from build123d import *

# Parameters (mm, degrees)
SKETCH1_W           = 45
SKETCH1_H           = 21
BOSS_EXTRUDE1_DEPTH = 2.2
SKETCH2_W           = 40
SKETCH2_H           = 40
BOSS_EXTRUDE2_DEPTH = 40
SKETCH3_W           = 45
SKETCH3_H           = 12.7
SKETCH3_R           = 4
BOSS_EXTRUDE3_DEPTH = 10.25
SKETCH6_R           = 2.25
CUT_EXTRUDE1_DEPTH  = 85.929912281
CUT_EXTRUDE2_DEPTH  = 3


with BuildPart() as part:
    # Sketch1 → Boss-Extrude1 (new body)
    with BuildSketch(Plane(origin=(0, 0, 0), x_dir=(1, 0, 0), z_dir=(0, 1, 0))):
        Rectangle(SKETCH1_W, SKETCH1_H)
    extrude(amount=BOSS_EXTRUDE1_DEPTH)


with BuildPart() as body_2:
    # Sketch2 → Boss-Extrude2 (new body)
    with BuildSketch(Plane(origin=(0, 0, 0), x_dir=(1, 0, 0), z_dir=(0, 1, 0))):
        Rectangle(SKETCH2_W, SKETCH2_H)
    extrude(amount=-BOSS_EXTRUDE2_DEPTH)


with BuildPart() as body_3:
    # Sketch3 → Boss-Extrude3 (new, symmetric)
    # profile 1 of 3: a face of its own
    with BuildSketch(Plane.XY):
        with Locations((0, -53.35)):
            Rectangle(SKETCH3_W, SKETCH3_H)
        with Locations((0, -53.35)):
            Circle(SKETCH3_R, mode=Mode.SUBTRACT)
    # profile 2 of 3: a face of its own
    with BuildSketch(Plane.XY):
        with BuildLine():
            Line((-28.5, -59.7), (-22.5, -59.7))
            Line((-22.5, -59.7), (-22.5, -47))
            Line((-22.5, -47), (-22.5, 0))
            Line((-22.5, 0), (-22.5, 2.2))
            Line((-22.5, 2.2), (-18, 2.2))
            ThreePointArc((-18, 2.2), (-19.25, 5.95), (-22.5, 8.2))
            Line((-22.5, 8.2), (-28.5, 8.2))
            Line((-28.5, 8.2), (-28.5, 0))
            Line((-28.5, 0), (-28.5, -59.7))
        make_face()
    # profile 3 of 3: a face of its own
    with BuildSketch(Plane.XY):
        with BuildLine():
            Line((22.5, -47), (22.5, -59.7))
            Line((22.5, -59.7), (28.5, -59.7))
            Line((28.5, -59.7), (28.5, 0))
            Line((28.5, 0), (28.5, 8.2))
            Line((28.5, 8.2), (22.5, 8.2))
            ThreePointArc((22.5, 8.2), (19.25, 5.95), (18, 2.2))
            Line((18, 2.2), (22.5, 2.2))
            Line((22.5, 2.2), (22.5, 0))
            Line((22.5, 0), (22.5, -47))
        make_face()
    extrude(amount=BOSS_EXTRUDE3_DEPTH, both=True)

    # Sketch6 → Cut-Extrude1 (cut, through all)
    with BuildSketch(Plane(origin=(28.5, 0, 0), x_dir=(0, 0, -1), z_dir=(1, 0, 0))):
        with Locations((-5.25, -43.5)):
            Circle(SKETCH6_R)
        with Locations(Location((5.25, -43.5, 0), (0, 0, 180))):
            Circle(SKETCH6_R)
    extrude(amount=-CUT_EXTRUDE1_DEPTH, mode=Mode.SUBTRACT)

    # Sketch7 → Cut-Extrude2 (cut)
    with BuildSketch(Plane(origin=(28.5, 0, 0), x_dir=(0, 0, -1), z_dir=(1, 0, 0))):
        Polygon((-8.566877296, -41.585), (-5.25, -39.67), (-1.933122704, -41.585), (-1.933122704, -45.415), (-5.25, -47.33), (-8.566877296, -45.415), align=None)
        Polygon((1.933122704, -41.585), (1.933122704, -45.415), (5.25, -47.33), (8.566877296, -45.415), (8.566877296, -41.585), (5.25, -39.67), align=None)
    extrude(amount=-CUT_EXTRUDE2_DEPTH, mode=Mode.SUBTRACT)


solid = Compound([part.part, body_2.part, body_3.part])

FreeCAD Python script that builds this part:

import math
import FreeCAD as App
import Part
import Sketcher

V = App.Vector
Q = App.Units.Quantity

doc = App.newDocument("Part")
body = doc.addObject("PartDesign::Body", "Body")

# Sketch on XZ plane
sketch1 = doc.addObject("Sketcher::SketchObject", "Sketch")
body.addObject(sketch1)
sketch1.AttachmentSupport = (doc.XZ_Plane, [""])
sketch1.MapMode = "FlatFace"
sketch1.addGeometry([
    Part.LineSegment(V(-22.5, -10.5, 0), V(-22.5, 10.5, 0)),
    Part.LineSegment(V(-22.5, 10.5, 0), V(22.5, 10.5, 0)),
    Part.LineSegment(V(22.5, 10.5, 0), V(22.5, -10.5, 0)),
    Part.LineSegment(V(22.5, -10.5, 0), V(-22.5, -10.5, 0)),
], False)
sketch1.addConstraint([
    Sketcher.Constraint("Coincident", 0, 2, 1, 1),
    Sketcher.Constraint("Coincident", 1, 2, 2, 1),
    Sketcher.Constraint("Coincident", 2, 2, 3, 1),
    Sketcher.Constraint("Coincident", 3, 2, 0, 1),
    Sketcher.Constraint("Vertical", 0),
    Sketcher.Constraint("Horizontal", 1),
    Sketcher.Constraint("Vertical", 2),
    Sketcher.Constraint("Horizontal", 3),
    Sketcher.Constraint("Symmetric", 0, 2, 2, 2, -1, 1),
    Sketcher.Constraint("DistanceX", 1, 1, 1, 2, Q("45 mm")),
    Sketcher.Constraint("DistanceY", 0, 1, 0, 2, Q("21 mm")),
])
pad1 = doc.addObject("PartDesign::Pad", "Pad")
body.addObject(pad1)
pad1.Profile = sketch1
pad1.Length = 2.2
pad1.Reversed = True
body2 = doc.addObject("PartDesign::Body", "Body001")

# Sketch on XZ plane
sketch2 = doc.addObject("Sketcher::SketchObject", "Sketch001")
body2.addObject(sketch2)
sketch2.AttachmentSupport = (doc.getObject("XZ_Plane001"), [""])
sketch2.MapMode = "FlatFace"
sketch2.addGeometry([
    Part.LineSegment(V(-20, -20, 0), V(-20, 20, 0)),
    Part.LineSegment(V(-20, 20, 0), V(20, 20, 0)),
    Part.LineSegment(V(20, 20, 0), V(20, -20, 0)),
    Part.LineSegment(V(20, -20, 0), V(-20, -20, 0)),
], False)
sketch2.addConstraint([
    Sketcher.Constraint("Coincident", 0, 2, 1, 1),
    Sketcher.Constraint("Coincident", 1, 2, 2, 1),
    Sketcher.Constraint("Coincident", 2, 2, 3, 1),
    Sketcher.Constraint("Coincident", 3, 2, 0, 1),
    Sketcher.Constraint("Vertical", 0),
    Sketcher.Constraint("Horizontal", 1),
    Sketcher.Constraint("Vertical", 2),
    Sketcher.Constraint("Horizontal", 3),
    Sketcher.Constraint("Symmetric", 0, 2, 2, 2, -1, 1),
    Sketcher.Constraint("Equal", 3, 0),
    Sketcher.Constraint("DistanceX", 1, 1, 1, 2, Q("40 mm")),
])
pad2 = doc.addObject("PartDesign::Pad", "Pad001")
body2.addObject(pad2)
pad2.Profile = sketch2
pad2.Length = 40
body3 = doc.addObject("PartDesign::Body", "Body002")

# Sketch on XY plane
sketch3 = doc.addObject("Sketcher::SketchObject", "Sketch002")
body3.addObject(sketch3)
sketch3.AttachmentSupport = (doc.getObject("XY_Plane002"), [""])
sketch3.MapMode = "FlatFace"
sketch3.addGeometry([
    Part.LineSegment(V(28.5, -59.7, 0), V(28.5, 8.2, 0)),  # 0
    Part.LineSegment(V(28.5, 8.2, 0), V(22.5, 8.2, 0)),  # 1
    Part.ArcOfCircle(Part.Circle(V(24.25, 2.2, 0), V(0, 0, 1), 6.25), math.radians(106.260205), math.radians(180)),  # 2
    Part.LineSegment(V(18, 2.2, 0), V(22.5, 2.2, 0)),  # 3
    Part.LineSegment(V(22.5, 2.2, 0), V(22.5, -47, 0)),  # 4
    Part.LineSegment(V(22.5, -47, 0), V(-22.5, -47, 0)),  # 5
    Part.LineSegment(V(-22.5, -47, 0), V(-22.5, 2.2, 0)),  # 6
    Part.LineSegment(V(-22.5, 2.2, 0), V(-18, 2.2, 0)),  # 7
    Part.ArcOfCircle(Part.Circle(V(-24.25, 2.2, 0), V(0, 0, 1), 6.25), math.radians(0), math.radians(73.739795)),  # 8
    Part.LineSegment(V(-22.5, 8.2, 0), V(-28.5, 8.2, 0)),  # 9
    Part.LineSegment(V(-28.5, 8.2, 0), V(-28.5, -59.7, 0)),  # 10
    Part.LineSegment(V(-28.5, -59.7, 0), V(28.5, -59.7, 0)),  # 11
    Part.Circle(V(0, -53.35, 0), V(0, 0, 1), 4),  # 12
], False)
sketch3.addConstraint([
    Sketcher.Constraint("Coincident", 0, 2, 1, 1),
    Sketcher.Constraint("Coincident", 1, 2, 2, 1),
    Sketcher.Constraint("Coincident", 2, 2, 3, 1),
    Sketcher.Constraint("Coincident", 3, 2, 4, 1),
    Sketcher.Constraint("Coincident", 4, 2, 5, 1),
    Sketcher.Constraint("Coincident", 5, 2, 6, 1),
    Sketcher.Constraint("Coincident", 6, 2, 7, 1),
    Sketcher.Constraint("Coincident", 7, 2, 8, 1),
    Sketcher.Constraint("Coincident", 8, 2, 9, 1),
    Sketcher.Constraint("Coincident", 9, 2, 10, 1),
    Sketcher.Constraint("Coincident", 10, 2, 11, 1),
    Sketcher.Constraint("Coincident", 11, 2, 0, 1),
    Sketcher.Constraint("Vertical", 0),
    Sketcher.Constraint("Horizontal", 1),
    Sketcher.Constraint("Horizontal", 3),
    Sketcher.Constraint("Vertical", 4),
    Sketcher.Constraint("Horizontal", 5),
    Sketcher.Constraint("Vertical", 6),
    Sketcher.Constraint("Horizontal", 7),
    Sketcher.Constraint("Horizontal", 9),
    Sketcher.Constraint("Vertical", 10),
    Sketcher.Constraint("Horizontal", 11),
    Sketcher.Constraint("Equal", 2, 8),
    Sketcher.Constraint("Symmetric", 2, 3, 8, 3, -2),
    Sketcher.Constraint("Symmetric", 3, 2, 6, 2, -2),
    Sketcher.Constraint("Symmetric", 0, 2, 9, 2, -2),
    Sketcher.Constraint("PointOnObject", 12, 3, -2),
    Sketcher.Constraint("Horizontal", 8, 3, 2, 2),
    Sketcher.Constraint("Vertical", 1, 2, 3, 2),
    Sketcher.Constraint("Diameter", 12, Q("8 mm")),
    Sketcher.Constraint("DistanceX", 1, 2, 1, 1, Q("6 mm")),
    Sketcher.Constraint("DistanceX", 5, 2, 5, 1, Q("45 mm")),
    Sketcher.Constraint("Radius", 2, Q("6.25 mm")),
    Sketcher.Constraint("DistanceX", 3, 1, 3, 2, Q("4.5 mm")),
    Sketcher.Constraint("DistanceY", 0, 1, 0, 2, Q("67.9 mm")),
    Sketcher.Constraint("DistanceY", 4, 2, 4, 1, Q("49.2 mm")),
    Sketcher.Constraint("DistanceY", 4, 2, -1, 1, Q("47 mm")),
    Sketcher.Constraint("DistanceY", 12, 3, -1, 1, Q("53.35 mm")),
])
pad3 = doc.addObject("PartDesign::Pad", "Pad002")
body3.addObject(pad3)
pad3.Profile = sketch3
pad3.Length = 20.5
pad3.Midplane = True

# Sketch on YZ plane
sketch4 = doc.addObject("Sketcher::SketchObject", "Sketch003")
body3.addObject(sketch4)
sketch4.AttachmentSupport = (doc.getObject("YZ_Plane002"), [""])
sketch4.MapMode = "FlatFace"
sketch4.AttachmentOffset = App.Placement(V(0, 0, 28.5), App.Rotation())
sketch4.addGeometry([
    Part.Circle(V(-43.5, 5.25, 0), V(0, 0, 1), 2.25),
    Part.Circle(V(-43.5, -5.25, 0), V(0, 0, 1), 2.25),
], False)
sketch4.addConstraint([
    Sketcher.Constraint("Equal", 0, 1),
    Sketcher.Constraint("Symmetric", 0, 3, 1, 3, -1),
    Sketcher.Constraint("Diameter", 0, Q("4.5 mm")),
    Sketcher.Constraint("DistanceX", 0, 3, -1, 1, Q("43.5 mm")),
    Sketcher.Constraint("DistanceY", 1, 3, 0, 3, Q("10.5 mm")),
])
pocket1 = doc.addObject("PartDesign::Pocket", "Pocket")
body3.addObject(pocket1)
pocket1.Profile = sketch4
pocket1.Type = "ThroughAll"

# Sketch on YZ plane
sketch5 = doc.addObject("Sketcher::SketchObject", "Sketch004")
body3.addObject(sketch5)
sketch5.AttachmentSupport = (doc.getObject("YZ_Plane002"), [""])
sketch5.MapMode = "FlatFace"
sketch5.AttachmentOffset = App.Placement(V(0, 0, 28.5), App.Rotation())
sketch5.addGeometry([
    Part.LineSegment(V(-39.67, 5.25, 0), V(-41.585, 8.566877, 0)),  # 0
    Part.LineSegment(V(-41.585, 8.566877, 0), V(-45.415, 8.566877, 0)),  # 1
    Part.LineSegment(V(-45.415, 8.566877, 0), V(-47.33, 5.25, 0)),  # 2
    Part.LineSegment(V(-47.33, 5.25, 0), V(-45.415, 1.933123, 0)),  # 3
    Part.LineSegment(V(-45.415, 1.933123, 0), V(-41.585, 1.933123, 0)),  # 4
    Part.LineSegment(V(-41.585, 1.933123, 0), V(-39.67, 5.25, 0)),  # 5
    Part.LineSegment(V(-41.585, -1.933123, 0), V(-45.415, -1.933123, 0)),  # 6
    Part.LineSegment(V(-45.415, -1.933123, 0), V(-47.33, -5.25, 0)),  # 7
    Part.LineSegment(V(-47.33, -5.25, 0), V(-45.415, -8.566877, 0)),  # 8
    Part.LineSegment(V(-45.415, -8.566877, 0), V(-41.585, -8.566877, 0)),  # 9
    Part.LineSegment(V(-41.585, -8.566877, 0), V(-39.67, -5.25, 0)),  # 10
    Part.LineSegment(V(-39.67, -5.25, 0), V(-41.585, -1.933123, 0)),  # 11
], False)
sketch5.addConstraint([
    Sketcher.Constraint("Coincident", 0, 2, 1, 1),
    Sketcher.Constraint("Coincident", 1, 2, 2, 1),
    Sketcher.Constraint("Coincident", 2, 2, 3, 1),
    Sketcher.Constraint("Coincident", 3, 2, 4, 1),
    Sketcher.Constraint("Coincident", 4, 2, 5, 1),
    Sketcher.Constraint("Coincident", 5, 2, 0, 1),
    Sketcher.Constraint("Coincident", 6, 2, 7, 1),
    Sketcher.Constraint("Coincident", 7, 2, 8, 1),
    Sketcher.Constraint("Coincident", 8, 2, 9, 1),
    Sketcher.Constraint("Coincident", 9, 2, 10, 1),
    Sketcher.Constraint("Coincident", 10, 2, 11, 1),
    Sketcher.Constraint("Coincident", 11, 2, 6, 1),
    Sketcher.Constraint("Horizontal", 1),
    Sketcher.Constraint("Horizontal", 4),
    Sketcher.Constraint("Horizontal", 6),
    Sketcher.Constraint("Horizontal", 9),
    Sketcher.Constraint("Symmetric", 3, 2, 6, 2, -1),
    Sketcher.Constraint("Symmetric", 2, 2, 7, 2, -1),
    Sketcher.Constraint("Symmetric", 1, 2, 8, 2, -1),
    Sketcher.Constraint("Symmetric", 5, 2, 10, 2, -1),
    Sketcher.Constraint("Parallel", 0, 3),
    Sketcher.Constraint("Parallel", 2, 5),
    Sketcher.Constraint("Parallel", 5, 7),
    Sketcher.Constraint("Parallel", 7, 10),
    Sketcher.Constraint("Parallel", 8, 11),
    Sketcher.Constraint("Horizontal", 2, 2, 5, 2),
    Sketcher.Constraint("Vertical", 1, 2, 3, 2),
    Sketcher.Constraint("Angle", 0, Q("120 deg")),
    Sketcher.Constraint("DistanceX", 1, 2, 1, 1, Q("3.83 mm")),
    Sketcher.Constraint("DistanceY", 6, 2, 1, 2, Q("10.5 mm")),
    Sketcher.Constraint("Distance", 0, Q("3.83 mm")),
    Sketcher.Constraint("DistanceX", 2, 2, -1, 1, Q("47.33 mm")),
])
pocket2 = doc.addObject("PartDesign::Pocket", "Pocket001")
body3.addObject(pocket2)
pocket2.Profile = sketch5
pocket2.Length = 3

doc.recompute()
